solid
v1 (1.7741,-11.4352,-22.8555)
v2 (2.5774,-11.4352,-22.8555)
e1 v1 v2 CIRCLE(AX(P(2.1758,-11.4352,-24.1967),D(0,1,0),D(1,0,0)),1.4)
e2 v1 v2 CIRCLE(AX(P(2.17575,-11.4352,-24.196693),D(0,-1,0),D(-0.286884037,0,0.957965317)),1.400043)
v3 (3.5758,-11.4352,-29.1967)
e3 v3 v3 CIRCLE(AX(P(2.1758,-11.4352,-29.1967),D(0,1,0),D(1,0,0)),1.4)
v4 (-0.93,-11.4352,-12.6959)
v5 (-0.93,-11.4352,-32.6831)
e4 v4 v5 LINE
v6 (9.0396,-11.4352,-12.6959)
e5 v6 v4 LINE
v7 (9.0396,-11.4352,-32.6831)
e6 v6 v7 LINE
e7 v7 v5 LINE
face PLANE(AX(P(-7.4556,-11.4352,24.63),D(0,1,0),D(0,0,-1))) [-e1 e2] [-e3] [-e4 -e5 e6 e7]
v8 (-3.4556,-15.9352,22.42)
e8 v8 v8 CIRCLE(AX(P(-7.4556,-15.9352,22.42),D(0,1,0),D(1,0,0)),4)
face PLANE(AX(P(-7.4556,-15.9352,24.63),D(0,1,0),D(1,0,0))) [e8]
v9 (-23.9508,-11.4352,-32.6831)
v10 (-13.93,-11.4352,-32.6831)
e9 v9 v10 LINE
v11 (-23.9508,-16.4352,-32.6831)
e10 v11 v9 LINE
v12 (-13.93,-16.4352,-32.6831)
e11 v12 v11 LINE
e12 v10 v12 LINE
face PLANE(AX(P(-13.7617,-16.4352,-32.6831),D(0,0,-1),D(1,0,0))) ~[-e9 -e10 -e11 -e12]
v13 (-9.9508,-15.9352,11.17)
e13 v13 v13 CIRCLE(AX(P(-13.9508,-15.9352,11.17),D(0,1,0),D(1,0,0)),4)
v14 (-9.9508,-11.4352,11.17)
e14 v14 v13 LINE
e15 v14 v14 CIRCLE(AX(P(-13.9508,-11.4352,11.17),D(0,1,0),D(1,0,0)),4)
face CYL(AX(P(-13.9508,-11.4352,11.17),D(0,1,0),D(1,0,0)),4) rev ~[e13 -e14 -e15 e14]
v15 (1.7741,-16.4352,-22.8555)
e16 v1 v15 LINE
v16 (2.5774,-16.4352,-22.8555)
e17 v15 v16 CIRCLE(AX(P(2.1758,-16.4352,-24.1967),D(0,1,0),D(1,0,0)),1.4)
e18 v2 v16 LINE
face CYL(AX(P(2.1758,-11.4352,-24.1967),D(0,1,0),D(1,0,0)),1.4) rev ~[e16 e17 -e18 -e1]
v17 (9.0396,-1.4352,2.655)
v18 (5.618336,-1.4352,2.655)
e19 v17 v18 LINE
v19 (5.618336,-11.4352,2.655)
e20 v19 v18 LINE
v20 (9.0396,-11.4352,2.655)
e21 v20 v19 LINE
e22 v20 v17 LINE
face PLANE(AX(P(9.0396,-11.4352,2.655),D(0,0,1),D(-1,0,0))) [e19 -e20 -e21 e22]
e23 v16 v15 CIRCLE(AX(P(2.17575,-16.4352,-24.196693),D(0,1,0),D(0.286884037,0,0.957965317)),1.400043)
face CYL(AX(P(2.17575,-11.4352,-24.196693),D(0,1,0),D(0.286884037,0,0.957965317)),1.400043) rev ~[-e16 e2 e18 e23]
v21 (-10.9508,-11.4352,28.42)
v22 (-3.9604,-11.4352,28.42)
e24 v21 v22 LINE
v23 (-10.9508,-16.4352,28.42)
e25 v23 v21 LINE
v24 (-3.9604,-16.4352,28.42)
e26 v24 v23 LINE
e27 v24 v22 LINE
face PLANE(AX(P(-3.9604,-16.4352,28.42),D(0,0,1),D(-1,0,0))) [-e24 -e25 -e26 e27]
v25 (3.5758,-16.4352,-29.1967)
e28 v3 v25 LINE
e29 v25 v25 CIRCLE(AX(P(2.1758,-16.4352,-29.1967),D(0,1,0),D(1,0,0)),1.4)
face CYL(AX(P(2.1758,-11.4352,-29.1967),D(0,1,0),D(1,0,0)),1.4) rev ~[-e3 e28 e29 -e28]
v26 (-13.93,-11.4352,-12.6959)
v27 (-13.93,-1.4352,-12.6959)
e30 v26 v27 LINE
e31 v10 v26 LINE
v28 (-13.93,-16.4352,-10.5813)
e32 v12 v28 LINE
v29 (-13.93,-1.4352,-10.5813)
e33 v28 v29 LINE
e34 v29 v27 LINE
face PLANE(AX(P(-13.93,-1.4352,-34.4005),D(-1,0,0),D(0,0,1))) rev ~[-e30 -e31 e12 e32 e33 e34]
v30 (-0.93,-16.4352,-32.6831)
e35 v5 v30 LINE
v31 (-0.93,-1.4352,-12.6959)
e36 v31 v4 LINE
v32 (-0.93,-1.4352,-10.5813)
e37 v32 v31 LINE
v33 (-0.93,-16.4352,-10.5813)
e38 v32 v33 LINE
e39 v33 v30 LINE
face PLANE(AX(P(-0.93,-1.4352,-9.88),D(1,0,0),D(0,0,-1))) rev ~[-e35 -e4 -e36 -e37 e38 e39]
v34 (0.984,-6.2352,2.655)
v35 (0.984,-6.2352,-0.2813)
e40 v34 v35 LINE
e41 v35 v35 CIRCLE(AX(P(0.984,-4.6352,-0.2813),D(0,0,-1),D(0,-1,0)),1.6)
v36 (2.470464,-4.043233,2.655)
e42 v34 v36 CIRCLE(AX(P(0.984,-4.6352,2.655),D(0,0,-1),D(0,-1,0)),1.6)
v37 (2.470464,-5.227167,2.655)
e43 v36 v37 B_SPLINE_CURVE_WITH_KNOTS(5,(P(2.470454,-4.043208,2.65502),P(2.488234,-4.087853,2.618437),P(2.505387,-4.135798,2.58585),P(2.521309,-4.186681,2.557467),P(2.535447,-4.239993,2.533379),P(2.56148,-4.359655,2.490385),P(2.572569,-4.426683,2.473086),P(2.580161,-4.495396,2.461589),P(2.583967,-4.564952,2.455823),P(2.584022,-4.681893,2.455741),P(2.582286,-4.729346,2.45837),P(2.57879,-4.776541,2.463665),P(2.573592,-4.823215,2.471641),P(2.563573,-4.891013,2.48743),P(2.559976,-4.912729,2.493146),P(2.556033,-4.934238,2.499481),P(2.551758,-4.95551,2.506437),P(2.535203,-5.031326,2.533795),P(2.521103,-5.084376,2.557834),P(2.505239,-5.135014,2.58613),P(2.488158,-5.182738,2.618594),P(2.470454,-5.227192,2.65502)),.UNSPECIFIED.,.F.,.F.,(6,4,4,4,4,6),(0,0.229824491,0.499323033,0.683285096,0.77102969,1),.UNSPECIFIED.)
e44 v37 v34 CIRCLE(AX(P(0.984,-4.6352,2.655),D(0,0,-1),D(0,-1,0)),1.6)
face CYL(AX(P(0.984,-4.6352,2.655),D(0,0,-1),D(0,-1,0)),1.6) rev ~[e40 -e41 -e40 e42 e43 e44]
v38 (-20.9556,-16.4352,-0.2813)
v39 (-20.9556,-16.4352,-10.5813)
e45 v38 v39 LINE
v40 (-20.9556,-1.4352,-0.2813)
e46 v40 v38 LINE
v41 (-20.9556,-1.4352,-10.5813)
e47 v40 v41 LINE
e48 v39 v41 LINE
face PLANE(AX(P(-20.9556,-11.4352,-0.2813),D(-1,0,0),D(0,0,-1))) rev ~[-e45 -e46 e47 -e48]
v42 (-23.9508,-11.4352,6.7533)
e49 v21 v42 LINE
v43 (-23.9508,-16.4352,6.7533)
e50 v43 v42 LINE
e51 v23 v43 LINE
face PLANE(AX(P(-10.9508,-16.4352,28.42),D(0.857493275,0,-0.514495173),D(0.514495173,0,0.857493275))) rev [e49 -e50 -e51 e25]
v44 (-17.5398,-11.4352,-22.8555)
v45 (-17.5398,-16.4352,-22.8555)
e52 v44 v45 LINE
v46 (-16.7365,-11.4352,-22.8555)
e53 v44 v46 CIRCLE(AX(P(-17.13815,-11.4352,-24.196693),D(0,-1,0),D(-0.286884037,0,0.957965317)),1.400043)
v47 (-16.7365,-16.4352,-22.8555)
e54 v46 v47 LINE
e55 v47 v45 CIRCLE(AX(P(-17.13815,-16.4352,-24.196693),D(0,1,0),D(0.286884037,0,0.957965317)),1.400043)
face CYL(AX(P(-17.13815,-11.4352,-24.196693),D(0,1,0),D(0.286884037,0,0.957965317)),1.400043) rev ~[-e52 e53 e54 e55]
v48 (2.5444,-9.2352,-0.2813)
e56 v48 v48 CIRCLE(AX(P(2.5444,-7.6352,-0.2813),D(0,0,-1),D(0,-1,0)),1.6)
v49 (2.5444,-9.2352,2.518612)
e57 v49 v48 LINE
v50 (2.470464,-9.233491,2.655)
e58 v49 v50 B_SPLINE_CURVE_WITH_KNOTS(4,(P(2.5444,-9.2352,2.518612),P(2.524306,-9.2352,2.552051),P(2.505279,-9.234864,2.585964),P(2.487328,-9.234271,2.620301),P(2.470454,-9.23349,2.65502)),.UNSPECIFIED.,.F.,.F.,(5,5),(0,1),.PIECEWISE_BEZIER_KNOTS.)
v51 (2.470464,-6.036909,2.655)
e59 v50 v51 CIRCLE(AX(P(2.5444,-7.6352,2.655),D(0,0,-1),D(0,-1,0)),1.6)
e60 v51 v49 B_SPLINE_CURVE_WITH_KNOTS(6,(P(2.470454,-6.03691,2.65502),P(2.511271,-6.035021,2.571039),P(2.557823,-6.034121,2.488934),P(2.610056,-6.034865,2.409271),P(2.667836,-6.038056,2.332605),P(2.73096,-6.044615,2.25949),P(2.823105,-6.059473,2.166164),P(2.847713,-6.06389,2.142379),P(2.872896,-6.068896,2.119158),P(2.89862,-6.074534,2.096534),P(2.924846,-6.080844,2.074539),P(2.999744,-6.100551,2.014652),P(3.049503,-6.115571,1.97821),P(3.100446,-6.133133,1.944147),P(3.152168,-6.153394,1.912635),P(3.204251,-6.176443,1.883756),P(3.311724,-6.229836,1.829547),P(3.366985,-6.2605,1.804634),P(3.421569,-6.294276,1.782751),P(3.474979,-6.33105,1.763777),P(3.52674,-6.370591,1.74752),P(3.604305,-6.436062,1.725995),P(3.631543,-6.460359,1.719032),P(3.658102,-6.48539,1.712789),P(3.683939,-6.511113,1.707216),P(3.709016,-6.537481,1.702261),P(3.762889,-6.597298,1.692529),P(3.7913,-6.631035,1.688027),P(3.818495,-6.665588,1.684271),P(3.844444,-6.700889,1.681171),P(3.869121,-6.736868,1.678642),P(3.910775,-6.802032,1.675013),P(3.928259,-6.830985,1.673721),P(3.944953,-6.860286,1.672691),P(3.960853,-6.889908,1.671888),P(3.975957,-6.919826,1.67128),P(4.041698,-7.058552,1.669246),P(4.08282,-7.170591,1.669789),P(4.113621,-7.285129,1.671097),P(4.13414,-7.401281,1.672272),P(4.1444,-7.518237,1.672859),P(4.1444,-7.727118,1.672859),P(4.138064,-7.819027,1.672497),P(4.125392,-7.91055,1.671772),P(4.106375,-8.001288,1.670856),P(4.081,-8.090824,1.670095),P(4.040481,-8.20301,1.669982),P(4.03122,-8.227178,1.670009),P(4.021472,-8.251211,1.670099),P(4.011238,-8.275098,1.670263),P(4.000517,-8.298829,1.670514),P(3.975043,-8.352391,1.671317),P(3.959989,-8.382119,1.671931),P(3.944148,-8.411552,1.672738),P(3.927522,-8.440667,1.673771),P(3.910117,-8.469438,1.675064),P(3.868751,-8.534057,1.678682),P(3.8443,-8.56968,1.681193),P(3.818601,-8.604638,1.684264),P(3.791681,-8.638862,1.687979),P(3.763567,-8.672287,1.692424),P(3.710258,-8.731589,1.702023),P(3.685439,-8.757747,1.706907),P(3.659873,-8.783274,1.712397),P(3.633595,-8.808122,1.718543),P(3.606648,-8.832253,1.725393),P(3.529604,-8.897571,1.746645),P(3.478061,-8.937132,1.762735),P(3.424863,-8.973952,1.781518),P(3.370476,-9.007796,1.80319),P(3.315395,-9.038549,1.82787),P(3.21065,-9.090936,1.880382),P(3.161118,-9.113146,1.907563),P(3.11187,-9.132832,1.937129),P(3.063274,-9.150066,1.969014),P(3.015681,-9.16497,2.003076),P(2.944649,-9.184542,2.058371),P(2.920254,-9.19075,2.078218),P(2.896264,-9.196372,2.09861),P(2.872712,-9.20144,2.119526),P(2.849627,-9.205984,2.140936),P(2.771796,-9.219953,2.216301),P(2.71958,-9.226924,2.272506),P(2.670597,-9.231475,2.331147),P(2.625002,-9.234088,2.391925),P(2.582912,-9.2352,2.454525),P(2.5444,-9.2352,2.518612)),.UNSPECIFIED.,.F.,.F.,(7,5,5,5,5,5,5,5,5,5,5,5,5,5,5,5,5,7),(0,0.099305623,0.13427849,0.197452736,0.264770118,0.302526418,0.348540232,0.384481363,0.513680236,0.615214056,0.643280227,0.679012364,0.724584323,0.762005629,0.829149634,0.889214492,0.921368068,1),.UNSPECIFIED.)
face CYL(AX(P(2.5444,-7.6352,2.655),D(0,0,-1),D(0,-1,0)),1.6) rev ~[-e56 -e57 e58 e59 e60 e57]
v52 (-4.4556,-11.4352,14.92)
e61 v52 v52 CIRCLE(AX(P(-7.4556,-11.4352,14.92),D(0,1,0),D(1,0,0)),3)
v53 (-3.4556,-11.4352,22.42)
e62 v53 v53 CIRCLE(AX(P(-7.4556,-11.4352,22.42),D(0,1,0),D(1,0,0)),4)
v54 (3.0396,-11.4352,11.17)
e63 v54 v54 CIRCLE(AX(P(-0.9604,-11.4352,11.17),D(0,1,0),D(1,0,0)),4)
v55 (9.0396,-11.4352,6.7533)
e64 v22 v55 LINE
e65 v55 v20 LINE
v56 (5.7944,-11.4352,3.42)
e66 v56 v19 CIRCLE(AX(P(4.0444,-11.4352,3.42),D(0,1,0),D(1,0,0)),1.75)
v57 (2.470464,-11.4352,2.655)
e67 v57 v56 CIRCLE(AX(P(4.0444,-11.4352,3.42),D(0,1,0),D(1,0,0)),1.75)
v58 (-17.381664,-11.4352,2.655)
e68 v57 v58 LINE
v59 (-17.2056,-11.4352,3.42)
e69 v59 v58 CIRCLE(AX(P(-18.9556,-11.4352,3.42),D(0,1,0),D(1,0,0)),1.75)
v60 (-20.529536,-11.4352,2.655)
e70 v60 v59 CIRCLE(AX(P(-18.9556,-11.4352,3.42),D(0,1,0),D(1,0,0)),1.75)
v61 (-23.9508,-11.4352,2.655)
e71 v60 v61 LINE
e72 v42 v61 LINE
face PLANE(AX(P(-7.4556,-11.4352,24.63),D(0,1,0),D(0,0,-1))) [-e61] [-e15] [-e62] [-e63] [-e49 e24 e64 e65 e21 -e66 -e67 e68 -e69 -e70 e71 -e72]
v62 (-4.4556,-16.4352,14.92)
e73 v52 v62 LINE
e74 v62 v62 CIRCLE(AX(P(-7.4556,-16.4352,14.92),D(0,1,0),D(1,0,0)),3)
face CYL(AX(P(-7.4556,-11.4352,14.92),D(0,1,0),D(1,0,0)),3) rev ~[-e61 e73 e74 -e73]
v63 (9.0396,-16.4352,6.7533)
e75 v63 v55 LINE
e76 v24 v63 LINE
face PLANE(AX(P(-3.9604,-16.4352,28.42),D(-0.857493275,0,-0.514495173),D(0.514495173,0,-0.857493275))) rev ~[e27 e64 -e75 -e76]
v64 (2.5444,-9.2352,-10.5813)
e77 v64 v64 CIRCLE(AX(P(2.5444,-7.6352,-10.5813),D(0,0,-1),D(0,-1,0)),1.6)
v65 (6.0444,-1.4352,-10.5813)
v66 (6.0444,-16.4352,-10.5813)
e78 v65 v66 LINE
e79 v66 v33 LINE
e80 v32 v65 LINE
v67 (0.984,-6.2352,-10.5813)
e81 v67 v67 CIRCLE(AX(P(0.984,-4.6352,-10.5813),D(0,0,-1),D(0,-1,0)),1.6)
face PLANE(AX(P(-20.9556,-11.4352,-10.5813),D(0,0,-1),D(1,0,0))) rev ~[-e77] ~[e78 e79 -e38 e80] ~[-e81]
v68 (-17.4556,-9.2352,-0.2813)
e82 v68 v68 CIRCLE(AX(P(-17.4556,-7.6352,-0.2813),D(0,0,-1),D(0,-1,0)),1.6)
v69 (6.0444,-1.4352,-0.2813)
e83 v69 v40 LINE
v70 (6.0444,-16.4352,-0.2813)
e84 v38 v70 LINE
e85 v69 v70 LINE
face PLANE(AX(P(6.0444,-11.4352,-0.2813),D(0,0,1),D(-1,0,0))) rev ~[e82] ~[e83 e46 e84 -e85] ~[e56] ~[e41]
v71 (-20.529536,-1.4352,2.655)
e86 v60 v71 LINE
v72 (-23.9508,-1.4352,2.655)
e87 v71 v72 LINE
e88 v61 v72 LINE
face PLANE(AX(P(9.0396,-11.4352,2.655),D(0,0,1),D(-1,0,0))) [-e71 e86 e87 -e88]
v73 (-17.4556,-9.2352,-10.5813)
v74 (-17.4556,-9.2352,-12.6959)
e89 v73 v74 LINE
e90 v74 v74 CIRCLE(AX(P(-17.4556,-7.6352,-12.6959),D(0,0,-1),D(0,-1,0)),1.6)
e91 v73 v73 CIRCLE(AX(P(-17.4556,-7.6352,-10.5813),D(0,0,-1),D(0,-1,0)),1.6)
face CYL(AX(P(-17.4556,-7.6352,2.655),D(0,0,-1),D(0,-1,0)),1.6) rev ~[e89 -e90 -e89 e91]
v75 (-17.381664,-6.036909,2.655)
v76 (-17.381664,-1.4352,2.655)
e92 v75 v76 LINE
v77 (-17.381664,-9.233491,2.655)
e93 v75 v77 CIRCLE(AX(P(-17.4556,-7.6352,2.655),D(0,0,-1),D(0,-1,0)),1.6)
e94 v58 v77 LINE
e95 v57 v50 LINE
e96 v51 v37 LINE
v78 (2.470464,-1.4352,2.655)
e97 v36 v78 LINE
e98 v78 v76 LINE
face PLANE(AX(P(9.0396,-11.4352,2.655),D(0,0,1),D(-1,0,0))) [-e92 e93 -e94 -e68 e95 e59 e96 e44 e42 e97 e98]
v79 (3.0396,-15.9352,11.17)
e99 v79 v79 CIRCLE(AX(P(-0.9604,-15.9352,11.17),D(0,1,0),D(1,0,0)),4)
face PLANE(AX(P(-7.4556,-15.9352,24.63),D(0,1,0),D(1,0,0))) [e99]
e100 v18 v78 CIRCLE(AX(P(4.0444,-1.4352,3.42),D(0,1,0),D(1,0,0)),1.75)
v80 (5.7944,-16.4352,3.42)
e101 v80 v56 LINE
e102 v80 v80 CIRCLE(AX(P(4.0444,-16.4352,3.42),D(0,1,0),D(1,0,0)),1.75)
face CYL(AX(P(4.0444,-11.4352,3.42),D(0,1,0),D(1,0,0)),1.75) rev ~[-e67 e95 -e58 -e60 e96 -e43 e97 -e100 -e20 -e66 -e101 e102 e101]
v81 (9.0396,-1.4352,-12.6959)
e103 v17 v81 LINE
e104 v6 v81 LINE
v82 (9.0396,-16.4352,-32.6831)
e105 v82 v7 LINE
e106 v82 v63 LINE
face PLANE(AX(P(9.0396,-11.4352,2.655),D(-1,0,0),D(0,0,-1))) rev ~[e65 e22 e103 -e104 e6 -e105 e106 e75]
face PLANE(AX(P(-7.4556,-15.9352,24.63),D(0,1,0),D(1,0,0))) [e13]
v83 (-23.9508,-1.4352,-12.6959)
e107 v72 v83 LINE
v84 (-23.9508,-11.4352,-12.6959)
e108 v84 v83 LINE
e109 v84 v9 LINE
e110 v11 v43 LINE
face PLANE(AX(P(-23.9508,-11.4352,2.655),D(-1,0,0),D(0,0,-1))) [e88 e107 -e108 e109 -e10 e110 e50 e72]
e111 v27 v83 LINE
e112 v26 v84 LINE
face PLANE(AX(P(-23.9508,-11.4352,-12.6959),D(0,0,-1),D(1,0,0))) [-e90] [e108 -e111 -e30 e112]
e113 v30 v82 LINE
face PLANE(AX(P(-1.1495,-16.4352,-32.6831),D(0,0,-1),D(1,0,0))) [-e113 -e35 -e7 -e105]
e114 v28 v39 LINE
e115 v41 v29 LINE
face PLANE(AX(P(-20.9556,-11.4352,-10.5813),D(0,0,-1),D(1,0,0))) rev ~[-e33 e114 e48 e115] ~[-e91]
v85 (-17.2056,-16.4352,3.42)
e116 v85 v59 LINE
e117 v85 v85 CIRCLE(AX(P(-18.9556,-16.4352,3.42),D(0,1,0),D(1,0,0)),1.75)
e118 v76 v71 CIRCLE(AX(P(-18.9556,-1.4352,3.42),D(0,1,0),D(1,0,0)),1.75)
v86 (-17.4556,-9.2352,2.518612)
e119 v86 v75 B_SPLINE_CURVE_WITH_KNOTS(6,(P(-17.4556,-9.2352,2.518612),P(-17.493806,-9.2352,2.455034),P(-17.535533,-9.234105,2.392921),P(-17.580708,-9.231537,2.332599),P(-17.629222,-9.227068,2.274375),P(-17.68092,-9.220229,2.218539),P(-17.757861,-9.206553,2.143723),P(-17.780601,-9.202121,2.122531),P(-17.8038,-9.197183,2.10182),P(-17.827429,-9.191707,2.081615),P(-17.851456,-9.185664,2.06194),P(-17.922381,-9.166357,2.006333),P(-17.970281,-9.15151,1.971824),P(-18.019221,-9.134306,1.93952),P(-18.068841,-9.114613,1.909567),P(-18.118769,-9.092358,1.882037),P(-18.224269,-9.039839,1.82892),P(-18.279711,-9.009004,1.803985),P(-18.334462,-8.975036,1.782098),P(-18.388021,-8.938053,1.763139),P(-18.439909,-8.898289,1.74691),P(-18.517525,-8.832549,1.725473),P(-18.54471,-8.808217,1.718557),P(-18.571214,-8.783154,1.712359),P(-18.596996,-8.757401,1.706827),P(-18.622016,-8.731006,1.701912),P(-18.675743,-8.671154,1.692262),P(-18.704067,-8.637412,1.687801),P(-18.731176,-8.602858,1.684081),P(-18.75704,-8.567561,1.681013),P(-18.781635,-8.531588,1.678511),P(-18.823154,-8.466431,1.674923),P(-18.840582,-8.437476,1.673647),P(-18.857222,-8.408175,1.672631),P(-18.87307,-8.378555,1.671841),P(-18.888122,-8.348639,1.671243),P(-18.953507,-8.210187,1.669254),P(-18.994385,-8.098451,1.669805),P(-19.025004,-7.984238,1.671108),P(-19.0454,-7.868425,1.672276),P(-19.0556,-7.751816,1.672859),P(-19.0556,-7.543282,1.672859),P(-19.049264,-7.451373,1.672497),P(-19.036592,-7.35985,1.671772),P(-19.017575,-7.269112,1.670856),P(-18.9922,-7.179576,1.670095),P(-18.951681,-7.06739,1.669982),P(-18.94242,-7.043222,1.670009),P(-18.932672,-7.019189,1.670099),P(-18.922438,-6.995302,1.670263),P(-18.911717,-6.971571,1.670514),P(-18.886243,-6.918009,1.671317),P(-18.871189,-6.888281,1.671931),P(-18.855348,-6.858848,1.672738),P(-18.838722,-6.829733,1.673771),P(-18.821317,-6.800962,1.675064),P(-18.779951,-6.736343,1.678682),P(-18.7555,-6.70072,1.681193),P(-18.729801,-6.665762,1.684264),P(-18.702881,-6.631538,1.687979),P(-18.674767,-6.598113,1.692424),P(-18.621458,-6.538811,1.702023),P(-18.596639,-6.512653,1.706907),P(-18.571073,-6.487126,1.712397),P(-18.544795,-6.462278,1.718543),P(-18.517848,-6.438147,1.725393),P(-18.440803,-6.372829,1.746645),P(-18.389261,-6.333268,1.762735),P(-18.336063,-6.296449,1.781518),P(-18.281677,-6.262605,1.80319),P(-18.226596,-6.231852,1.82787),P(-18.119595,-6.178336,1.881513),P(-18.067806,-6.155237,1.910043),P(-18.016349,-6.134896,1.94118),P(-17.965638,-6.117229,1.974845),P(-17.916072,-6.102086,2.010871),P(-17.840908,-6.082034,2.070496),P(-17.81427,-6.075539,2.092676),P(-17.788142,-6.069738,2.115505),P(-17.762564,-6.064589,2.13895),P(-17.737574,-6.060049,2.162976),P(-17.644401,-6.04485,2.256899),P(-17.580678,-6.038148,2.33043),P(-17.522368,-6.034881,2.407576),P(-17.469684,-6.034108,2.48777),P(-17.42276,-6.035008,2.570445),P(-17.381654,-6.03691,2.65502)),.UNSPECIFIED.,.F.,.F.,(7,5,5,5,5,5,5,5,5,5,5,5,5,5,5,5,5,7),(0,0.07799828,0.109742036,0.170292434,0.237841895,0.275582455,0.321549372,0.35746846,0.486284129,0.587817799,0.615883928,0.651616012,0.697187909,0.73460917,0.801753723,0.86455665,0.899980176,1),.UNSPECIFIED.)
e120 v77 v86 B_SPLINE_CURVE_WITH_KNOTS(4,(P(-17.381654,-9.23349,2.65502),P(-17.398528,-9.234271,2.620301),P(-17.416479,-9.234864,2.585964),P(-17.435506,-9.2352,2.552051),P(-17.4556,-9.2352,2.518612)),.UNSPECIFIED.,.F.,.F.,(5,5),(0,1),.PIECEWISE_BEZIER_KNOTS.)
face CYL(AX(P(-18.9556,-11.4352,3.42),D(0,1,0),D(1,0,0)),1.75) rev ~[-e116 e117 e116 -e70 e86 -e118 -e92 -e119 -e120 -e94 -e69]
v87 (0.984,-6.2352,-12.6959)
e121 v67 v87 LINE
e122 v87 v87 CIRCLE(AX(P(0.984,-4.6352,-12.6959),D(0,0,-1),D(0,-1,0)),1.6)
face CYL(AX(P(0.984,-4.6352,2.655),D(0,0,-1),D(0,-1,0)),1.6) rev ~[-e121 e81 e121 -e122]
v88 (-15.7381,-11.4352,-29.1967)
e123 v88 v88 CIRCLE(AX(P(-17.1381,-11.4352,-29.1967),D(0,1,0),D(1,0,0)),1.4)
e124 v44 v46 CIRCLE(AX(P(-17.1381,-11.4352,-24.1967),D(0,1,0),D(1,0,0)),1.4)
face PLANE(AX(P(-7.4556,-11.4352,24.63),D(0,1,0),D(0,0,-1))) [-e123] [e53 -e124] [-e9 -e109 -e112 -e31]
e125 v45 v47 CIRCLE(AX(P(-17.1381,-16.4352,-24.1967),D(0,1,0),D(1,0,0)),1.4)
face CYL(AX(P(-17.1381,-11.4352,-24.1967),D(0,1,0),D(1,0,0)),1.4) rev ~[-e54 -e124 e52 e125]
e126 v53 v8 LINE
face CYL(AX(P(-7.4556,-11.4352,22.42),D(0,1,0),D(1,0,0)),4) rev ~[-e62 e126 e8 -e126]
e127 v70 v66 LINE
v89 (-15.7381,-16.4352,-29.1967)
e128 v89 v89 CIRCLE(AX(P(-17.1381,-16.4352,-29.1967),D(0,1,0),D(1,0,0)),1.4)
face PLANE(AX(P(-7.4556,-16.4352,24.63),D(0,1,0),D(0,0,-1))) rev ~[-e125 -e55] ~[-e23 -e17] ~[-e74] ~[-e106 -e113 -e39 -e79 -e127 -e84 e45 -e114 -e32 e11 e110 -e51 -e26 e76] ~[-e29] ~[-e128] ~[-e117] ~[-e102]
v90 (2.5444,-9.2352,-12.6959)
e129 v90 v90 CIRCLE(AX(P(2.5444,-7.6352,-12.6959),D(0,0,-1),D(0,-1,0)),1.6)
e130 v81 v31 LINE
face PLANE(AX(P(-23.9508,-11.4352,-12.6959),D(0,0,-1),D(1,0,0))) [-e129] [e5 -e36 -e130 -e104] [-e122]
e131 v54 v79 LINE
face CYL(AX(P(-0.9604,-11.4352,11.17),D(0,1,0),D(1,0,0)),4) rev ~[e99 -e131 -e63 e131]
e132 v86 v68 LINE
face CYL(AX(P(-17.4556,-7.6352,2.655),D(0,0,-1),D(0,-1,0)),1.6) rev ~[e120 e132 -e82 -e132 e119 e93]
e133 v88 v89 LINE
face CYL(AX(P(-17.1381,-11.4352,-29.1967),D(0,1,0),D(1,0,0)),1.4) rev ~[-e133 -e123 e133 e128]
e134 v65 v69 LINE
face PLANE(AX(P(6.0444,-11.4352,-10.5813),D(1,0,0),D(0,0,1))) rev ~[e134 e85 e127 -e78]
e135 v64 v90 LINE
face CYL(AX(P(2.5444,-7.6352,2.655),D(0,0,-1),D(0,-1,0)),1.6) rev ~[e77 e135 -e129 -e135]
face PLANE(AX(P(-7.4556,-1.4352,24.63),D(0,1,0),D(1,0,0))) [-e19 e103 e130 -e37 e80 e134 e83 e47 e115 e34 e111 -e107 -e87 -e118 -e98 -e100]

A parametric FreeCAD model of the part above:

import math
import FreeCAD as App
import Part
import Sketcher
from FreeCAD import Vector

doc = App.newDocument("Part")
body = doc.addObject("PartDesign::Body", "Body")

# Sketch on XZ plane
sketch1 = body.newObject("Sketcher::SketchObject", "Sketch")
sketch1.AttachmentSupport = (doc.getObject("XZ_Plane"), [""])
sketch1.MapMode = "FlatFace"
sketch1.AttachmentOffset = App.Placement(Vector(0, 0, 16.4352), App.Rotation())
sketch1.addGeometry([
    Part.LineSegment(Vector(-7.5, -25.3, 0), Vector(-7.5, 28.4, 0)),  # 0
    Part.LineSegment(Vector(-7.5, 28.4, 0), Vector(-4, 28.4, 0)),  # 1
    Part.LineSegment(Vector(-4, 28.4, 0), Vector(9, 6.8, 0)),  # 2
    Part.LineSegment(Vector(9, 6.8, 0), Vector(9, -32.7, 0)),  # 3
    Part.LineSegment(Vector(9, -32.7, 0), Vector(-1.1, -32.7, 0)),  # 4
    Part.LineSegment(Vector(-1.1, -32.7, 0), Vector(-1.1, -25.3, 0)),  # 5
    Part.LineSegment(Vector(-1.1, -25.3, 0), Vector(-7.5, -25.3, 0)),  # 6
], False)
sketch1.addConstraint([
    Sketcher.Constraint("Coincident", 0, 2, 1, 1),
    Sketcher.Constraint("Coincident", 1, 2, 2, 1),
    Sketcher.Constraint("Coincident", 2, 2, 3, 1),
    Sketcher.Constraint("Coincident", 3, 2, 4, 1),
    Sketcher.Constraint("Coincident", 4, 2, 5, 1),
    Sketcher.Constraint("Coincident", 5, 2, 6, 1),
    Sketcher.Constraint("Coincident", 6, 2, 0, 1),
    Sketcher.Constraint("Vertical", 0),
    Sketcher.Constraint("Horizontal", 1),
    Sketcher.Constraint("Vertical", 3),
    Sketcher.Constraint("Horizontal", 4),
    Sketcher.Constraint("Vertical", 5),
    Sketcher.Constraint("Horizontal", 6),
    Sketcher.Constraint("DistanceX", 1, 2, 2, 2, 13.0),
    Sketcher.Constraint("DistanceY", 0, 1, 0, 2, 53.72),
    Sketcher.Constraint("DistanceY", 5, 2, -1, 1, 25.3),
    Sketcher.Constraint("DistanceX", 4, 2, 4, 1, 10.189),
    Sketcher.Constraint("DistanceX", 6, 2, 6, 1, 6.306),
    Sketcher.Constraint("DistanceY", 5, 1, 5, 2, 7.383),
    Sketcher.Constraint("DistanceY", 3, 2, 3, 1, 39.4364),
    Sketcher.Constraint("DistanceX", 0, 2, -1, 1, 7.4556),
])
pad1 = body.newObject("PartDesign::Pad", "Pad")
pad1.Profile = sketch1
pad1.Length = 5
pad1.Reversed = True

# Sketch on XZ plane
sketch2 = body.newObject("Sketcher::SketchObject", "Sketch001")
sketch2.AttachmentSupport = (doc.getObject("XZ_Plane"), [""])
sketch2.MapMode = "FlatFace"
sketch2.AttachmentOffset = App.Placement(Vector(0, 0, 11.4352), App.Rotation())
sketch2.addGeometry([
    Part.LineSegment(Vector(-21, -11, 0), Vector(-21, 0, 0)),
    Part.LineSegment(Vector(-21, 0, 0), Vector(6, 0, 0)),
    Part.LineSegment(Vector(6, 0, 0), Vector(6, -11, 0)),
    Part.LineSegment(Vector(6, -11, 0), Vector(-21, -11, 0)),
], False)
sketch2.addConstraint([
    Sketcher.Constraint("Coincident", 0, 2, 1, 1),
    Sketcher.Constraint("Coincident", 1, 2, 2, 1),
    Sketcher.Constraint("Coincident", 2, 2, 3, 1),
    Sketcher.Constraint("Coincident", 3, 2, 0, 1),
    Sketcher.Constraint("Vertical", 0),
    Sketcher.Constraint("Horizontal", 1),
    Sketcher.Constraint("Vertical", 2),
    Sketcher.Constraint("Horizontal", 3),
    Sketcher.Constraint("DistanceY", 0, 1, 0, 2, 10.3),
    Sketcher.Constraint("DistanceX", 0, 2, -1, 1, 20.63),
    Sketcher.Constraint("DistanceX", 1, 1, 1, 2, 26.6744),
    Sketcher.Constraint("DistanceY", 0, 2, -1, 1, 0.2813),
])
pocket1 = body.newObject("PartDesign::Pocket", "Pocket")
pocket1.Profile = sketch2
pocket1.Type = "ThroughAll"
pocket1.Reversed = True
doc.recompute()

datumplane = body.newObject("PartDesign::Plane", "DatumPlane")
datumplane.AttachmentSupport = (doc.getObject("YZ_Plane"), [""])
datumplane.MapMode = "FlatFace"
datumplane.AttachmentOffset = App.Placement(Vector(0, 0, -7.4556), App.Rotation())
mirrored = body.newObject("PartDesign::Mirrored", "Mirrored")
mirrored.Originals = [pad1, pocket1]
mirrored.MirrorPlane = (datumplane, [""])
body.Tip = mirrored

# Sketch on XZ plane
sketch3 = body.newObject("Sketcher::SketchObject", "Sketch002")
sketch3.AttachmentSupport = (doc.getObject("XZ_Plane"), [""])
sketch3.MapMode = "FlatFace"
sketch3.AttachmentOffset = App.Placement(Vector(0, 0, 11.4352), App.Rotation())
sketch3.addGeometry([
    Part.Circle(Vector(-1, 11.2, 0), Vector(0, 0, 1), 4),
    Part.Circle(Vector(-7.5, 22.4, 0), Vector(0, 0, 1), 4),
    Part.Circle(Vector(-14, 11.2, 0), Vector(0, 0, 1), 4),
], False)
sketch3.addConstraint([
    Sketcher.Constraint("Equal", 0, 1),
    Sketcher.Constraint("Equal", 1, 2),
    Sketcher.Constraint("Horizontal", 0, 3, 2, 3),
    Sketcher.Constraint("Diameter", 0, 8.0),
    Sketcher.Constraint("DistanceY", -1, 1, 0, 3, 11.17),
    Sketcher.Constraint("DistanceY", -1, 1, 1, 3, 22.42),
    Sketcher.Constraint("DistanceX", 0, 3, -1, 1, 0.9604),
    Sketcher.Constraint("DistanceX", 1, 3, -1, 1, 7.4556),
    Sketcher.Constraint("DistanceX", 2, 3, -1, 1, 13.9508),
])
pocket2 = body.newObject("PartDesign::Pocket", "Pocket001")
pocket2.Profile = sketch3
pocket2.Length = 4.5
pocket2.Reversed = True

# Sketch on XZ plane
sketch4 = body.newObject("Sketcher::SketchObject", "Sketch003")
sketch4.AttachmentSupport = (doc.getObject("XZ_Plane"), [""])
sketch4.MapMode = "FlatFace"
sketch4.AttachmentOffset = App.Placement(Vector(0, 0, 11.4352), App.Rotation())
sketch4.addGeometry([
    Part.LineSegment(Vector(-24, -13, 0), Vector(-24, 3, 0)),  # 0
    Part.LineSegment(Vector(-24, 3, 0), Vector(9, 3, 0)),  # 1
    Part.LineSegment(Vector(9, 3, 0), Vector(9, -13, 0)),  # 2
    Part.LineSegment(Vector(9, -13, 0), Vector(-24, -13, 0)),  # 3
    Part.LineSegment(Vector(-21, 0, 0), Vector(-21, -11, 0)),  # 4
    Part.LineSegment(Vector(-21, -11, 0), Vector(6, -11, 0)),  # 5
    Part.LineSegment(Vector(6, -11, 0), Vector(6, 0, 0)),  # 6
    Part.LineSegment(Vector(6, 0, 0), Vector(-21, 0, 0)),  # 7
], False)
sketch4.addConstraint([
    Sketcher.Constraint("Coincident", 0, 2, 1, 1),
    Sketcher.Constraint("Coincident", 1, 2, 2, 1),
    Sketcher.Constraint("Coincident", 2, 2, 3, 1),
    Sketcher.Constraint("Coincident", 3, 2, 0, 1),
    Sketcher.Constraint("Coincident", 4, 2, 5, 1),
    Sketcher.Constraint("Coincident", 5, 2, 6, 1),
    Sketcher.Constraint("Coincident", 6, 2, 7, 1),
    Sketcher.Constraint("Coincident", 7, 2, 4, 1),
    Sketcher.Constraint("Vertical", 0),
    Sketcher.Constraint("Horizontal", 1),
    Sketcher.Constraint("Vertical", 2),
    Sketcher.Constraint("Horizontal", 3),
    Sketcher.Constraint("Vertical", 4),
    Sketcher.Constraint("Horizontal", 5),
    Sketcher.Constraint("Vertical", 6),
    Sketcher.Constraint("Horizontal", 7),
    Sketcher.Constraint("DistanceX", 5, 1, 5, 2, 27.0),
    Sketcher.Constraint("DistanceY", 4, 2, 4, 1, 10.3),
    Sketcher.Constraint("DistanceY", 0, 1, 0, 2, 15.351),
    Sketcher.Constraint("DistanceX", 1, 1, 1, 2, 32.9904),
    Sketcher.Constraint("DistanceY", -1, 1, 0, 2, 2.655),
    Sketcher.Constraint("DistanceX", 0, 2, -1, 1, 23.9508),
    Sketcher.Constraint("DistanceX", 4, 2, -1, 1, 20.9556),
    Sketcher.Constraint("DistanceY", 4, 2, -1, 1, 10.5813),
])
pad2 = body.newObject("PartDesign::Pad", "Pad001")
pad2.Profile = sketch4
pad2.Length = 10
pad2.Reversed = True

# Sketch on XY plane
sketch5 = body.newObject("Sketcher::SketchObject", "Sketch004")
sketch5.AttachmentSupport = (doc.getObject("XY_Plane"), [""])
sketch5.MapMode = "FlatFace"
sketch5.AttachmentOffset = App.Placement(Vector(0, 0, 2.655), App.Rotation())
sketch5.addGeometry([
    Part.Circle(Vector(-17.5, -7.6, 0), Vector(0, 0, 1), 1.6),
    Part.Circle(Vector(2.5, -7.6, 0), Vector(0, 0, 1), 1.6),
    Part.Circle(Vector(1, -4.6, 0), Vector(0, 0, 1), 1.6),
], False)
sketch5.addConstraint([
    Sketcher.Constraint("Equal", 0, 1),
    Sketcher.Constraint("Equal", 1, 2),
    Sketcher.Constraint("Horizontal", 0, 3, 1, 3),
    Sketcher.Constraint("Diameter", 0, 3.2),
    Sketcher.Constraint("DistanceX", 0, 3, 1, 3, 20.0),
    Sketcher.Constraint("DistanceY", 1, 3, 2, 3, 3.0),
    Sketcher.Constraint("DistanceX", -1, 1, 2, 3, 0.984),
    Sketcher.Constraint("DistanceX", 0, 3, -1, 1, 17.4556),
    Sketcher.Constraint("DistanceY", 0, 3, -1, 1, 7.6352),
])
doc.recompute()
hole = body.newObject("PartDesign::Hole", "Hole")
hole.Profile = sketch5
hole.ThreadType = "None"
hole.Diameter = 3.2
hole.DepthType = "ThroughAll"

# Sketch on XZ plane
sketch6 = body.newObject("Sketcher::SketchObject", "Sketch005")
sketch6.AttachmentSupport = (doc.getObject("XZ_Plane"), [""])
sketch6.MapMode = "FlatFace"
sketch6.AttachmentOffset = App.Placement(Vector(0, 0, 11.4352), App.Rotation())
sketch6.addGeometry([
    Part.Circle(Vector(-18, -43.9, 0), Vector(0, 0, 1), 1.4),  # 0
    Part.Circle(Vector(1.3, -43.9, 0), Vector(0, 0, 1), 1.4),  # 1
    Part.ArcOfCircle(Part.Circle(Vector(-18, -38.9, 0), Vector(0, 0, 1), 1.4), math.radians(73), math.radians(107)),  # 2
    Part.ArcOfCircle(Part.Circle(Vector(-18, -38.9, 0), Vector(0, 0, 1), 1.4), math.radians(107), math.radians(433)),  # 3
    Part.ArcOfCircle(Part.Circle(Vector(1.3, -38.9, 0), Vector(0, 0, 1), 1.4), math.radians(73), math.radians(107)),  # 4
    Part.ArcOfCircle(Part.Circle(Vector(1.3, -38.9, 0), Vector(0, 0, 1), 1.4), math.radians(107), math.radians(433)),  # 5
], False)
sketch6.addConstraint([
    Sketcher.Constraint("Tangent", 2, 1, 3, 2),
    Sketcher.Constraint("Coincident", 3, 1, 2, 2),
    Sketcher.Constraint("Tangent", 4, 1, 5, 2),
    Sketcher.Constraint("Coincident", 5, 1, 4, 2),
    Sketcher.Constraint("Equal", 0, 1),
    Sketcher.Constraint("Equal", 1, 2),
    Sketcher.Constraint("Equal", 3, 4),
    Sketcher.Constraint("Horizontal", 0, 3, 1, 3),
    Sketcher.Constraint("Horizontal", 3, 3, 4, 3),
    Sketcher.Constraint("Horizontal", 2, 1, 3, 1),
    Sketcher.Constraint("Horizontal", 3, 1, 4, 1),
    Sketcher.Constraint("Horizontal", 4, 1, 5, 1),
    Sketcher.Constraint("Vertical", 0, 3, 2, 3),
    Sketcher.Constraint("Vertical", 1, 3, 4, 3),
    Sketcher.Constraint("Diameter", 0, 2.8),
    Sketcher.Constraint("DistanceY", 0, 3, 2, 3, 5.0),
    Sketcher.Constraint("DistanceX", 0, 3, -1, 1, 17.987),
    Sketcher.Constraint("DistanceX", 0, 3, 1, 3, 19.314),
    Sketcher.Constraint("DistanceY", 0, 3, -1, 1, 43.9167),
    Sketcher.Constraint("DistanceX", 2, 1, -1, 1, 17.5854),
])
pocket3 = body.newObject("PartDesign::Pocket", "Pocket002")
pocket3.Profile = sketch6
pocket3.Length = 10
pocket3.Reversed = True

# Sketch on XZ plane
sketch7 = body.newObject("Sketcher::SketchObject", "Sketch006")
sketch7.AttachmentSupport = (doc.getObject("XZ_Plane"), [""])
sketch7.MapMode = "FlatFace"
sketch7.AttachmentOffset = App.Placement(Vector(0, 0, 1.4352), App.Rotation())
sketch7.addGeometry([
    Part.LineSegment(Vector(-14, -34, 0), Vector(-14, -4, 0)),
    Part.LineSegment(Vector(-14, -4, 0), Vector(-1, -4, 0)),
    Part.LineSegment(Vector(-1, -4, 0), Vector(-1, -34, 0)),
    Part.LineSegment(Vector(-1, -34, 0), Vector(-14, -34, 0)),
], False)
sketch7.addConstraint([
    Sketcher.Constraint("Coincident", 0, 2, 1, 1),
    Sketcher.Constraint("Coincident", 1, 2, 2, 1),
    Sketcher.Constraint("Coincident", 2, 2, 3, 1),
    Sketcher.Constraint("Coincident", 3, 2, 0, 1),
    Sketcher.Constraint("Vertical", 0),
    Sketcher.Constraint("Horizontal", 1),
    Sketcher.Constraint("Vertical", 2),
    Sketcher.Constraint("Horizontal", 3),
    Sketcher.Constraint("DistanceX", 1, 1, 1, 2, 13.0),
    Sketcher.Constraint("DistanceX", 0, 2, -1, 1, 13.93),
    Sketcher.Constraint("DistanceY", 0, 2, -1, 1, 3.83),
    Sketcher.Constraint("DistanceY", 0, 1, 0, 2, 30.5705),
])
pocket4 = body.newObject("PartDesign::Pocket", "Pocket003")
pocket4.Profile = sketch7
pocket4.Type = "ThroughAll"
pocket4.Reversed = True

# Sketch on XZ plane
sketch8 = body.newObject("Sketcher::SketchObject", "Sketch007")
sketch8.AttachmentSupport = (doc.getObject("XZ_Plane"), [""])
sketch8.MapMode = "FlatFace"
sketch8.AttachmentOffset = App.Placement(Vector(0, 0, 11.4352), App.Rotation())
sketch8.addGeometry([
    Part.Circle(Vector(4, 3.4, 0), Vector(0, 0, 1), 1.8),
    Part.Circle(Vector(-19, 3.4, 0), Vector(0, 0, 1), 1.8),
], False)
sketch8.addConstraint([
    Sketcher.Constraint("Equal", 0, 1),
    Sketcher.Constraint("Horizontal", 0, 3, 1, 3),
    Sketcher.Constraint("Diameter", 0, 3.5),
    Sketcher.Constraint("DistanceX", 1, 3, 0, 3, 23.0),
    Sketcher.Constraint("DistanceY", -1, 1, 0, 3, 3.42),
    Sketcher.Constraint("DistanceX", -1, 1, 0, 3, 4.0444),
])
pocket5 = body.newObject("PartDesign::Pocket", "Pocket004")
pocket5.Profile = sketch8
pocket5.Type = "ThroughAll"
pocket5.Midplane = True

# Sketch on XZ plane
sketch9 = body.newObject("Sketcher::SketchObject", "Sketch008")
sketch9.AttachmentSupport = (doc.getObject("XZ_Plane"), [""])
sketch9.MapMode = "FlatFace"
sketch9.AttachmentOffset = App.Placement(Vector(0, 0, 11.4352), App.Rotation())
sketch9.addGeometry(Part.Circle(Vector(-7.5, 14.9, 0), Vector(0, 0, 1), 3), False)
sketch9.addConstraint([
    Sketcher.Constraint("Diameter", 0, 6.0),
    Sketcher.Constraint("DistanceY", -1, 1, 0, 3, 14.92),
    Sketcher.Constraint("DistanceX", 0, 3, -1, 1, 7.4556),
])
pocket6 = body.newObject("PartDesign::Pocket", "Pocket005")
pocket6.Profile = sketch9
pocket6.Length = 10
pocket6.Reversed = True

# Sketch on XZ plane
sketch10 = body.newObject("Sketcher::SketchObject", "Sketch009")
sketch10.AttachmentSupport = (doc.getObject("XZ_Plane"), [""])
sketch10.MapMode = "FlatFace"
sketch10.AttachmentOffset = App.Placement(Vector(0, 0, 11.4352), App.Rotation())
sketch10.addGeometry([
    Part.ArcOfCircle(Part.Circle(Vector(2.2, -24.2, 0), Vector(0, 0, 1), 1.4), math.radians(107), math.radians(433)),  # 0
    Part.ArcOfCircle(Part.Circle(Vector(2.2, -24.2, 0), Vector(0, 0, 1), 1.4), math.radians(73), math.radians(107)),  # 1
    Part.ArcOfCircle(Part.Circle(Vector(-17.1, -24.2, 0), Vector(0, 0, 1), 1.4), math.radians(73), math.radians(107)),  # 2
    Part.ArcOfCircle(Part.Circle(Vector(-17.1, -24.2, 0), Vector(0, 0, 1), 1.4), math.radians(107), math.radians(433)),  # 3
    Part.Circle(Vector(-17.1, -29.2, 0), Vector(0, 0, 1), 1.4),  # 4
    Part.Circle(Vector(2.2, -29.2, 0), Vector(0, 0, 1), 1.4),  # 5
], False)
sketch10.addConstraint([
    Sketcher.Constraint("Tangent", 0, 1, 1, 2),
    Sketcher.Constraint("Coincident", 1, 1, 0, 2),
    Sketcher.Constraint("Tangent", 2, 1, 3, 2),
    Sketcher.Constraint("Coincident", 3, 1, 2, 2),
    Sketcher.Constraint("Equal", 1, 2),
    Sketcher.Constraint("Equal", 3, 4),
    Sketcher.Constraint("Equal", 4, 5),
    Sketcher.Constraint("Horizontal", 1, 3, 2, 3),
    Sketcher.Constraint("Horizontal", 4, 3, 5, 3),
    Sketcher.Constraint("Horizontal", 0, 1, 1, 1),
    Sketcher.Constraint("Horizontal", 1, 1, 2, 1),
    Sketcher.Constraint("Horizontal", 2, 1, 3, 1),
    Sketcher.Constraint("Vertical", 3, 3, 4, 3),
    Sketcher.Constraint("Vertical", 1, 3, 5, 3),
    Sketcher.Constraint("Diameter", 4, 2.8),
    Sketcher.Constraint("DistanceY", 4, 3, 2, 3, 5.0),
    Sketcher.Constraint("DistanceX", 2, 3, -1, 1, 17.138),
    Sketcher.Constraint("DistanceX", -1, 1, 0, 1, 1.774),
    Sketcher.Constraint("DistanceX", 2, 3, 0, 3, 19.314),
    Sketcher.Constraint("DistanceY", 0, 3, -1, 1, 24.1967),
])
pocket7 = body.newObject("PartDesign::Pocket", "Pocket006")
pocket7.Profile = sketch10
pocket7.Length = 10
pocket7.Reversed = True

doc.recompute()
